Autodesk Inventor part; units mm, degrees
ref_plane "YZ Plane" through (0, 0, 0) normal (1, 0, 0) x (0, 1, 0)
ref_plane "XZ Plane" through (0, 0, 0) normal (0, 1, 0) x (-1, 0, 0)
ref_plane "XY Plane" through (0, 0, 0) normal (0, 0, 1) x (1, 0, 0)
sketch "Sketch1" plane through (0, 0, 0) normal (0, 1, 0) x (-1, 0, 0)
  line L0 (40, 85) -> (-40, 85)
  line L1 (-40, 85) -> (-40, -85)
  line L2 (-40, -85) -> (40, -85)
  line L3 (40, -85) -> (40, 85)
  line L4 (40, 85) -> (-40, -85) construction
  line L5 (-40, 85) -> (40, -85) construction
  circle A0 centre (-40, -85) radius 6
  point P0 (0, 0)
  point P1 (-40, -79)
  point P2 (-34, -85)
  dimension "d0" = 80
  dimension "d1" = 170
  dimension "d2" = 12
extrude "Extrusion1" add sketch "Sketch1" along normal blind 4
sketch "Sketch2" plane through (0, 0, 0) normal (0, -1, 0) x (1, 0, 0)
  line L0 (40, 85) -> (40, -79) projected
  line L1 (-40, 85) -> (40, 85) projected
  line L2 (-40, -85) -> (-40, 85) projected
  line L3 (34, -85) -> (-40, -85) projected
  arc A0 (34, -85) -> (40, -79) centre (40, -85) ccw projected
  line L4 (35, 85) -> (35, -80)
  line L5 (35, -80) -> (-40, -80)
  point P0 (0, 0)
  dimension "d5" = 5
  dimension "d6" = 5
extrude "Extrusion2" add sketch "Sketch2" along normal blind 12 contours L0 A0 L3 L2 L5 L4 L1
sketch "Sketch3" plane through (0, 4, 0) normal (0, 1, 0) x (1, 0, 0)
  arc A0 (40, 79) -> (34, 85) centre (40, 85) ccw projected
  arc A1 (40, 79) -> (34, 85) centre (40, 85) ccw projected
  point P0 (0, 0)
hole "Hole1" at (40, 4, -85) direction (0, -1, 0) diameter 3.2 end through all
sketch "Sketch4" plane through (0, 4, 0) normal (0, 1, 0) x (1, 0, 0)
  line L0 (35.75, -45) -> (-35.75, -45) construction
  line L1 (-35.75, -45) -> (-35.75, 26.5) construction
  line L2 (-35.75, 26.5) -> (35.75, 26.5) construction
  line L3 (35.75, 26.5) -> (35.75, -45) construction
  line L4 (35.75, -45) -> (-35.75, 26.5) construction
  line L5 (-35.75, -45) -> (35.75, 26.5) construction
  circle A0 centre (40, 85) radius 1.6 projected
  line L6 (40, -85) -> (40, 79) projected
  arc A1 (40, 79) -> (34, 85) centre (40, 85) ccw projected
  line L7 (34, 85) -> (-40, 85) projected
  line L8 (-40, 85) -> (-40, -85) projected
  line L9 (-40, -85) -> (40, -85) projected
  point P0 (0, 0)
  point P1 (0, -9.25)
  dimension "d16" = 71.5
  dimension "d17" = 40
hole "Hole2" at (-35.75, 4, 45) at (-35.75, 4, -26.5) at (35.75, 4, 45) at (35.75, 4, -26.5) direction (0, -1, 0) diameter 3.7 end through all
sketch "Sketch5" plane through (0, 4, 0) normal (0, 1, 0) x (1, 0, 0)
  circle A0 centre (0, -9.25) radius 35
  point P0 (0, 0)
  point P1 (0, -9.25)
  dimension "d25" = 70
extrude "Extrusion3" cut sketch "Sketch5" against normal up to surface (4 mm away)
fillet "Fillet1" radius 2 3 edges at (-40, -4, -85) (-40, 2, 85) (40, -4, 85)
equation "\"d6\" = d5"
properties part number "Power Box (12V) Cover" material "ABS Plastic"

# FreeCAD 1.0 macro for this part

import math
import FreeCAD as App
import Part
import Sketcher
from FreeCAD import Vector
Q = App.Units.Quantity


def edges_at(feature, points):
    """Names of the edges that pass closest to the given points."""
    edges = feature.Shape.Edges
    near = lambda p: min(range(len(edges)), key=lambda i: edges[i].distToShape(Part.Vertex(*p))[0])
    return sorted({f"Edge{near(p) + 1}" for p in points})

doc = App.newDocument("Part")
body = doc.addObject("PartDesign::Body", "Body")

# Sketch on XZ plane
sketch1 = doc.addObject("Sketcher::SketchObject", "Sketch")
body.addObject(sketch1)
sketch1.AttachmentSupport = (doc.XZ_Plane, [""])
sketch1.MapMode = "FlatFace"
sketch1.addGeometry([
    Part.LineSegment(Vector(-40, -85, 0), Vector(-40, 85, 0)),  # 0
    Part.LineSegment(Vector(-40, 85, 0), Vector(40, 85, 0)),  # 1
    Part.LineSegment(Vector(40, 85, 0), Vector(40, -79, 0)),  # 2
    Part.ArcOfCircle(Part.Circle(Vector(40, -85, 0), Vector(0, 0, 1), 6), math.radians(180), math.radians(450)),  # 3
    Part.LineSegment(Vector(34, -85, 0), Vector(-40, -85, 0)),  # 4
], False)
sketch1.addConstraint([
    Sketcher.Constraint("Coincident", 0, 2, 1, 1),
    Sketcher.Constraint("Coincident", 1, 2, 2, 1),
    Sketcher.Constraint("Coincident", 2, 2, 3, 2),
    Sketcher.Constraint("Coincident", 3, 1, 4, 1),
    Sketcher.Constraint("Coincident", 4, 2, 0, 1),
    Sketcher.Constraint("Vertical", 0),
    Sketcher.Constraint("Horizontal", 1),
    Sketcher.Constraint("Vertical", 2),
    Sketcher.Constraint("Horizontal", 4),
    Sketcher.Constraint("Symmetric", 1, 2, 4, 2, -1, 1),
    Sketcher.Constraint("Vertical", 3, 3, 1, 2),
    Sketcher.Constraint("Radius", 3, Q("6 mm")),
    Sketcher.Constraint("DistanceX", 1, 1, 1, 2, Q("80 mm")),
    Sketcher.Constraint("DistanceY", 0, 1, 0, 2, Q("170 mm")),
    Sketcher.Constraint("DistanceY", 3, 3, 0, 2, Q("170 mm")),
])
pad1 = doc.addObject("PartDesign::Pad", "Pad")
body.addObject(pad1)
pad1.Profile = sketch1
pad1.Length = 4
pad1.Reversed = True

# Sketch on XZ plane
sketch2 = doc.addObject("Sketcher::SketchObject", "Sketch001")
body.addObject(sketch2)
sketch2.AttachmentSupport = (doc.XZ_Plane, [""])
sketch2.MapMode = "FlatFace"
sketch2.addGeometry([
    Part.LineSegment(Vector(40, -79, 0), Vector(40, 85, 0)),  # 0
    Part.LineSegment(Vector(40, 85, 0), Vector(35, 85, 0)),  # 1
    Part.LineSegment(Vector(35, 85, 0), Vector(35, -80, 0)),  # 2
    Part.LineSegment(Vector(35, -80, 0), Vector(-40, -80, 0)),  # 3
    Part.LineSegment(Vector(-40, -80, 0), Vector(-40, -85, 0)),  # 4
    Part.LineSegment(Vector(-40, -85, 0), Vector(34, -85, 0)),  # 5
    Part.ArcOfCircle(Part.Circle(Vector(40, -85, 0), Vector(0, 0, 1), 6), math.radians(180), math.radians(450)),  # 6
], False)
sketch2.addConstraint([
    Sketcher.Constraint("Coincident", 0, 2, 1, 1),
    Sketcher.Constraint("Coincident", 1, 2, 2, 1),
    Sketcher.Constraint("Coincident", 2, 2, 3, 1),
    Sketcher.Constraint("Coincident", 3, 2, 4, 1),
    Sketcher.Constraint("Coincident", 4, 2, 5, 1),
    Sketcher.Constraint("Coincident", 5, 2, 6, 1),
    Sketcher.Constraint("Coincident", 6, 2, 0, 1),
    Sketcher.Constraint("Vertical", 0),
    Sketcher.Constraint("Horizontal", 1),
    Sketcher.Constraint("Vertical", 2),
    Sketcher.Constraint("Horizontal", 3),
    Sketcher.Constraint("Vertical", 4),
    Sketcher.Constraint("Horizontal", 5),
    Sketcher.Constraint("Symmetric", 0, 2, 4, 2, -1, 1),
    Sketcher.Constraint("Horizontal", 6, 3, 4, 2),
    Sketcher.Constraint("Vertical", 6, 3, 0, 2),
    Sketcher.Constraint("Equal", 1, 4),
    Sketcher.Constraint("DistanceX", 1, 2, 1, 1, Q("5 mm")),
    Sketcher.Constraint("Radius", 6, Q("6 mm")),
    Sketcher.Constraint("DistanceX", 3, 2, 3, 1, Q("75 mm")),
    Sketcher.Constraint("DistanceY", 0, 1, 0, 2, Q("164 mm")),
])
pad2 = doc.addObject("PartDesign::Pad", "Pad001")
body.addObject(pad2)
pad2.Profile = sketch2
pad2.Length = 12

# Sketch on XZ plane
sketch3 = doc.addObject("Sketcher::SketchObject", "Sketch002")
body.addObject(sketch3)
sketch3.AttachmentSupport = (doc.XZ_Plane, [""])
sketch3.MapMode = "FlatFace"
sketch3.AttachmentOffset = App.Placement(Vector(0, 0, -4), App.Rotation())
sketch3.addGeometry(Part.Circle(Vector(40, -85, 0), Vector(0, 0, 1), 1.6), False)
sketch3.addConstraint([
    Sketcher.Constraint("Diameter", 0, Q("3.2 mm")),
    Sketcher.Constraint("DistanceX", -1, 1, 0, 3, Q("40 mm")),
    Sketcher.Constraint("DistanceY", 0, 3, -1, 1, Q("85 mm")),
])
doc.recompute()
hole = doc.addObject("PartDesign::Hole", "Hole")
body.addObject(hole)
hole.Profile = sketch3
hole.ThreadType = "None"
hole.Diameter = 3.2
hole.DepthType = "ThroughAll"
hole.Reversed = True

# Sketch on XZ plane
sketch4 = doc.addObject("Sketcher::SketchObject", "Sketch003")
body.addObject(sketch4)
sketch4.AttachmentSupport = (doc.XZ_Plane, [""])
sketch4.MapMode = "FlatFace"
sketch4.AttachmentOffset = App.Placement(Vector(0, 0, -4), App.Rotation())
sketch4.addGeometry([
    Part.Circle(Vector(-35.8, 45, 0), Vector(0, 0, 1), 1.9),
    Part.Circle(Vector(-35.8, -26.5, 0), Vector(0, 0, 1), 1.9),
    Part.Circle(Vector(35.8, 45, 0), Vector(0, 0, 1), 1.9),
    Part.Circle(Vector(35.8, -26.5, 0), Vector(0, 0, 1), 1.9),
], False)
sketch4.addConstraint([
    Sketcher.Constraint("Equal", 0, 1),
    Sketcher.Constraint("Equal", 1, 2),
    Sketcher.Constraint("Equal", 2, 3),
    Sketcher.Constraint("Symmetric", 0, 3, 2, 3, -2),
    Sketcher.Constraint("Symmetric", 1, 3, 3, 3, -2),
    Sketcher.Constraint("Vertical", 0, 3, 1, 3),
    Sketcher.Constraint("Diameter", 0, Q("3.7 mm")),
    Sketcher.Constraint("DistanceY", -1, 1, 0, 3, Q("45 mm")),
    Sketcher.Constraint("DistanceY", 1, 3, -1, 1, Q("26.5 mm")),
    Sketcher.Constraint("DistanceX", 0, 3, 2, 3, Q("71.5 mm")),
])
doc.recompute()
hole2 = doc.addObject("PartDesign::Hole", "Hole001")
body.addObject(hole2)
hole2.Profile = sketch4
hole2.ThreadType = "None"
hole2.Diameter = 3.7
hole2.DepthType = "ThroughAll"
hole2.Reversed = True

# Sketch on XZ plane
sketch5 = doc.addObject("Sketcher::SketchObject", "Sketch004")
body.addObject(sketch5)
sketch5.AttachmentSupport = (doc.XZ_Plane, [""])
sketch5.MapMode = "FlatFace"
sketch5.AttachmentOffset = App.Placement(Vector(0, 0, -4), App.Rotation())
sketch5.addGeometry(Part.Circle(Vector(0, 9, 0), Vector(0, 0, 1), 35), False)
sketch5.addConstraint([
    Sketcher.Constraint("PointOnObject", 0, 3, -2),
    Sketcher.Constraint("Diameter", 0, Q("70 mm")),
    Sketcher.Constraint("DistanceY", -1, 1, 0, 3, Q("9.25 mm")),
])
pocket1 = doc.addObject("PartDesign::Pocket", "Pocket")
body.addObject(pocket1)
pocket1.Profile = sketch5
pocket1.Length = 4
pocket1.Reversed = True
doc.recompute()

fillet = doc.addObject("PartDesign::Fillet", "Fillet")
body.addObject(fillet)
fillet.Base = (pocket1, edges_at(pocket1, [(-40, -4, -85), (-40, 2, 85), (40, -4, 85)]))
fillet.Radius = 2

doc.recompute()
